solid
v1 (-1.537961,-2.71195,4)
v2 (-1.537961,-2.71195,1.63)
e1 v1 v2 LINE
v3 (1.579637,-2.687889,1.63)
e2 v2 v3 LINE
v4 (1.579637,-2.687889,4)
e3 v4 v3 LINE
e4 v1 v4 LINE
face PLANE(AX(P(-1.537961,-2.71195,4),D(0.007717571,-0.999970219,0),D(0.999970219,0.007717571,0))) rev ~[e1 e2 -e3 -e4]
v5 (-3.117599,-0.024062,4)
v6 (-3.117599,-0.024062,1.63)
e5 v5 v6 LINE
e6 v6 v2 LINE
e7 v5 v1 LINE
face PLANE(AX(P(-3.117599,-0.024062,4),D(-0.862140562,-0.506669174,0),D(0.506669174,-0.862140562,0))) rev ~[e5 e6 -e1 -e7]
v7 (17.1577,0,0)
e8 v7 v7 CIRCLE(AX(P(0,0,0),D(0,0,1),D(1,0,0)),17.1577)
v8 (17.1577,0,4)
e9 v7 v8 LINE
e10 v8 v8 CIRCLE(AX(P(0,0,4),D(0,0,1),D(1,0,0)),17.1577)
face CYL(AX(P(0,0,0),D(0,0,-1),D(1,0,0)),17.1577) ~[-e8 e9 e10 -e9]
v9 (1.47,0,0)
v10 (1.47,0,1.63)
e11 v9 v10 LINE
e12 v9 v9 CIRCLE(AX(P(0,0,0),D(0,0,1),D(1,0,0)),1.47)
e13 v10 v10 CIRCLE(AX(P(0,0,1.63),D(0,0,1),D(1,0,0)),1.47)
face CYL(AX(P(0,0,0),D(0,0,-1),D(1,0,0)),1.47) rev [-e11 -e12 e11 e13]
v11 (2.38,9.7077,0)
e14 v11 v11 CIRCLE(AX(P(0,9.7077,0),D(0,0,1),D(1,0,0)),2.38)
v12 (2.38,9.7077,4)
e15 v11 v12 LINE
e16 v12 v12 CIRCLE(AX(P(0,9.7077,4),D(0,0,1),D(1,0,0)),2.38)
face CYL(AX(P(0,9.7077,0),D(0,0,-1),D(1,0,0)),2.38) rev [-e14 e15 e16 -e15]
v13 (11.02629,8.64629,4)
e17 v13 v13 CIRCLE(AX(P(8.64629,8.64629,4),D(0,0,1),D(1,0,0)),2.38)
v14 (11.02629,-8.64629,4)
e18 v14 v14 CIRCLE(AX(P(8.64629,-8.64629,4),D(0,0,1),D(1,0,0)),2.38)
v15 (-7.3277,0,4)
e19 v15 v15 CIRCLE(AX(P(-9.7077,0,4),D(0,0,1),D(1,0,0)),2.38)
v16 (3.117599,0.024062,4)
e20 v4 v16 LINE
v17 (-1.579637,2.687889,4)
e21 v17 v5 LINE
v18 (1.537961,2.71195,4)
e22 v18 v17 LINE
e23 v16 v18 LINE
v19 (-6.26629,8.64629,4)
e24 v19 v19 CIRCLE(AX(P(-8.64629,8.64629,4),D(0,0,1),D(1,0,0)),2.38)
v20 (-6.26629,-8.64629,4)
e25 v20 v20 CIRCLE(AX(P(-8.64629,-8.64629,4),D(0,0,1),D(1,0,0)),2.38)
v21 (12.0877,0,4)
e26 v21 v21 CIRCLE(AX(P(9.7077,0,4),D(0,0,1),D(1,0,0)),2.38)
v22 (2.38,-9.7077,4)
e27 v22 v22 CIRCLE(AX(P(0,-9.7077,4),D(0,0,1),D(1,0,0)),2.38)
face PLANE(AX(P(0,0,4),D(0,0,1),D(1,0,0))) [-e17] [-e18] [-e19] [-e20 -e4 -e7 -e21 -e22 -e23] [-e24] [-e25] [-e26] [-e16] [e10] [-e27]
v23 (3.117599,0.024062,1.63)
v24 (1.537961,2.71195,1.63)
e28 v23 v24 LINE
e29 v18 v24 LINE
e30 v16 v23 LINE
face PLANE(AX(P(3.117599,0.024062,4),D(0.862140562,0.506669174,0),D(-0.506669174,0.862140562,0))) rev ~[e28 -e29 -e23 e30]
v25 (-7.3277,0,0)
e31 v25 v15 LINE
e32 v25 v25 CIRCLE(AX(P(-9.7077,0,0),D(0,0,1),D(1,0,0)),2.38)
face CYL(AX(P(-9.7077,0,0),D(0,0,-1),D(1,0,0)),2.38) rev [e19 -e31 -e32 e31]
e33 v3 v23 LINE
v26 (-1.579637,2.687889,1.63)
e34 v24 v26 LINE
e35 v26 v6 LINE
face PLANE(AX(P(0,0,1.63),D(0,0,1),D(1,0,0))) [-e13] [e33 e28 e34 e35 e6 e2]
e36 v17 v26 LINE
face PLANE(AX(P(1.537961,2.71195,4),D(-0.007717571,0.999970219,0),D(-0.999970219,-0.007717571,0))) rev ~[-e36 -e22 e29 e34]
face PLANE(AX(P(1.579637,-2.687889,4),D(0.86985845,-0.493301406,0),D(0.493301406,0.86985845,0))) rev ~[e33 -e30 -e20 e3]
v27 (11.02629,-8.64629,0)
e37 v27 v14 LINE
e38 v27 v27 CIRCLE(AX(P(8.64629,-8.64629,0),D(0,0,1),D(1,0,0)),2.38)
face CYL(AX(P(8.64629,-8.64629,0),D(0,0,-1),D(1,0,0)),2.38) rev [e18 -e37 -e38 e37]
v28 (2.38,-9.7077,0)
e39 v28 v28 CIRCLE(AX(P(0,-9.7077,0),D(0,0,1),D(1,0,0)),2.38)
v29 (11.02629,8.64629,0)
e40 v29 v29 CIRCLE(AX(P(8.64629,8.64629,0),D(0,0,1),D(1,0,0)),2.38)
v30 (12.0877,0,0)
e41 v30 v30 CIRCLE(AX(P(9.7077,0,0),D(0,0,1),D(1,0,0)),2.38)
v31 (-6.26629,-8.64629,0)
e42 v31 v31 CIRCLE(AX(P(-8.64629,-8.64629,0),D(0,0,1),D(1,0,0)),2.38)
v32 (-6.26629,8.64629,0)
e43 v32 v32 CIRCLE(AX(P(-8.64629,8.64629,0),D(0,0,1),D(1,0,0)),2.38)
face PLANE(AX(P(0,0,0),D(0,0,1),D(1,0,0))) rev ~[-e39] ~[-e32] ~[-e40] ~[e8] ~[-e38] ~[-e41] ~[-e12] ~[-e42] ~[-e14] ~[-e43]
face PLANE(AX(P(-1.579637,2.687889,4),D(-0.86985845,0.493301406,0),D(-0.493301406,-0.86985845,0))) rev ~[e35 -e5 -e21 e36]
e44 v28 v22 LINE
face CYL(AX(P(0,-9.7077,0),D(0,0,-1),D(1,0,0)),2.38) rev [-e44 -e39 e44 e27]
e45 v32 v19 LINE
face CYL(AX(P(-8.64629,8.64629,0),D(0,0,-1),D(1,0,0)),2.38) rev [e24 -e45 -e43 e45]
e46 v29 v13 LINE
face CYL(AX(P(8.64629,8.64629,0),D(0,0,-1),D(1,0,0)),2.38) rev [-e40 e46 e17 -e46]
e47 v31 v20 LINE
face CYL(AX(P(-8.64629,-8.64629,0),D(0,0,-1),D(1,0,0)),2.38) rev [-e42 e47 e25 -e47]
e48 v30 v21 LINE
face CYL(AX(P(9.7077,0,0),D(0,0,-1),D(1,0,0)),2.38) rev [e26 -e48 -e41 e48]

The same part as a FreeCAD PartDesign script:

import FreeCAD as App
import Part
import Sketcher

doc = App.newDocument("Part")
params = doc.addObject("Spreadsheet::Sheet", "Params")
for row, (alias, value) in enumerate([
    ("sketch1_diameter", "4.76 mm"),
    ("sketch1_diameter2", "2.94 mm"),
    ("pad1_length", "4 mm"),
    ("sketch2_diameter", "2.94 mm"),
    ("pocket1_length", "2.37 mm"),
], start=1):
    params.set(f"A{row}", alias)
    params.set(f"B{row}", "=" + value)
    params.setAlias(f"B{row}", alias)

body = doc.addObject("PartDesign::Body", "Body")

# Sketch on XY plane
sketch1 = body.newObject("Sketcher::SketchObject", "Sketch")
sketch1.AttachmentSupport = (doc.getObject("XY_Plane"), [""])
sketch1.MapMode = "FlatFace"
sketch1.addGeometry([
    Part.Circle(App.Vector(0, 0, 0), App.Vector(0, 0, 1), 17.1577),  # 0
    Part.Circle(App.Vector(-8.64629, -8.64629, 0), App.Vector(0, 0, 1), 2.38),  # 1
    Part.Circle(App.Vector(-9.7077, 0, 0), App.Vector(0, 0, 1), 2.38),  # 2
    Part.Circle(App.Vector(0, -9.7077, 0), App.Vector(0, 0, 1), 2.38),  # 3
    Part.Circle(App.Vector(8.64629, -8.64629, 0), App.Vector(0, 0, 1), 2.38),  # 4
    Part.Circle(App.Vector(0, 0, 0), App.Vector(0, 0, 1), 1.47),  # 5
    Part.Circle(App.Vector(9.7077, 0, 0), App.Vector(0, 0, 1), 2.38),  # 6
    Part.Circle(App.Vector(-8.64629, 8.64629, 0), App.Vector(0, 0, 1), 2.38),  # 7
    Part.Circle(App.Vector(0, 9.7077, 0), App.Vector(0, 0, 1), 2.38),  # 8
    Part.Circle(App.Vector(8.64629, 8.64629, 0), App.Vector(0, 0, 1), 2.38),  # 9
], False)
sketch1.addConstraint([
    Sketcher.Constraint("Coincident", 0, 3, -1, 1),
    Sketcher.Constraint("Coincident", 5, 3, -1, 1),
    Sketcher.Constraint("Equal", 1, 2),
    Sketcher.Constraint("Equal", 2, 3),
    Sketcher.Constraint("Equal", 3, 4),
    Sketcher.Constraint("Equal", 4, 6),
    Sketcher.Constraint("Equal", 6, 7),
    Sketcher.Constraint("Equal", 7, 8),
    Sketcher.Constraint("Equal", 8, 9),
    Sketcher.Constraint("Symmetric", 2, 3, 6, 3, -1, 1),
    Sketcher.Constraint("Symmetric", 4, 3, 7, 3, -1, 1),
    Sketcher.Constraint("Symmetric", 3, 3, 8, 3, -1, 1),
    Sketcher.Constraint("Symmetric", 1, 3, 9, 3, -1, 1),
    Sketcher.Constraint("Symmetric", 1, 3, 4, 3, -2),
    Sketcher.Constraint("PointOnObject", 2, 3, -1),
    Sketcher.Constraint("PointOnObject", 3, 3, -2),
    Sketcher.Constraint("Diameter", 1, 4.76),
    Sketcher.Constraint("Diameter", 5, 2.94),
    Sketcher.Constraint("Diameter", 0, 34.3154),
    Sketcher.Constraint("DistanceX", 2, 3, -1, 1, 9.7077),
    Sketcher.Constraint("DistanceY", 3, 3, -1, 1, 9.7077),
    Sketcher.Constraint("DistanceX", 1, 3, -1, 1, 8.64629),
    Sketcher.Constraint("DistanceY", 1, 3, -1, 1, 8.64629),
])
sketch1.setExpression("Constraints[16]", "Params.sketch1_diameter")
sketch1.setExpression("Constraints[17]", "Params.sketch1_diameter2")
pad1 = body.newObject("PartDesign::Pad", "Pad")
pad1.Profile = sketch1
pad1.setExpression("Length", "Params.pad1_length")

# Sketch on XY plane
sketch2 = body.newObject("Sketcher::SketchObject", "Sketch001")
sketch2.AttachmentSupport = (doc.getObject("XY_Plane"), [""])
sketch2.MapMode = "FlatFace"
sketch2.AttachmentOffset = App.Placement(App.Vector(0, 0, 4), App.Rotation())
sketch2.addGeometry([
    Part.LineSegment(App.Vector(3.117599, 0.024062, 0), App.Vector(1.537961, 2.71195, 0)),  # 0
    Part.LineSegment(App.Vector(1.537961, 2.71195, 0), App.Vector(-1.579637, 2.687889, 0)),  # 1
    Part.LineSegment(App.Vector(-1.579637, 2.687889, 0), App.Vector(-3.117599, -0.024062, 0)),  # 2
    Part.LineSegment(App.Vector(-3.117599, -0.024062, 0), App.Vector(-1.537961, -2.71195, 0)),  # 3
    Part.LineSegment(App.Vector(-1.537961, -2.71195, 0), App.Vector(1.579637, -2.687889, 0)),  # 4
    Part.LineSegment(App.Vector(1.579637, -2.687889, 0), App.Vector(3.117599, 0.024062, 0)),  # 5
    Part.Circle(App.Vector(0, 0, 0), App.Vector(0, 0, 1), 1.47),  # 6
], False)
sketch2.addConstraint([
    Sketcher.Constraint("Coincident", 0, 2, 1, 1),
    Sketcher.Constraint("Coincident", 1, 2, 2, 1),
    Sketcher.Constraint("Coincident", 2, 2, 3, 1),
    Sketcher.Constraint("Coincident", 3, 2, 4, 1),
    Sketcher.Constraint("Coincident", 4, 2, 5, 1),
    Sketcher.Constraint("Coincident", 5, 2, 0, 1),
    Sketcher.Constraint("Coincident", 6, 3, -1, 1),
    Sketcher.Constraint("Symmetric", 0, 2, 3, 2, -1, 1),
    Sketcher.Constraint("Symmetric", 1, 2, 4, 2, -1, 1),
    Sketcher.Constraint("Symmetric", 2, 2, 5, 2, -1, 1),
    Sketcher.Constraint("Equal", 0, 1),
    Sketcher.Constraint("Equal", 1, 2),
    Sketcher.Constraint("Diameter", 6, 2.94),
    Sketcher.Constraint("DistanceX", 2, 2, -1, 1, 3.117599),
    Sketcher.Constraint("DistanceX", 1, 2, 0, 2, 3.117598),
    Sketcher.Constraint("DistanceY", 3, 2, 0, 2, 5.4239),
    Sketcher.Constraint("DistanceX", -1, 1, 0, 2, 1.537961),
])
sketch2.setExpression("Constraints[12]", "Params.sketch2_diameter")
pocket1 = body.newObject("PartDesign::Pocket", "Pocket")
pocket1.Profile = sketch2
pocket1.setExpression("Length", "Params.pocket1_length")

doc.recompute()
